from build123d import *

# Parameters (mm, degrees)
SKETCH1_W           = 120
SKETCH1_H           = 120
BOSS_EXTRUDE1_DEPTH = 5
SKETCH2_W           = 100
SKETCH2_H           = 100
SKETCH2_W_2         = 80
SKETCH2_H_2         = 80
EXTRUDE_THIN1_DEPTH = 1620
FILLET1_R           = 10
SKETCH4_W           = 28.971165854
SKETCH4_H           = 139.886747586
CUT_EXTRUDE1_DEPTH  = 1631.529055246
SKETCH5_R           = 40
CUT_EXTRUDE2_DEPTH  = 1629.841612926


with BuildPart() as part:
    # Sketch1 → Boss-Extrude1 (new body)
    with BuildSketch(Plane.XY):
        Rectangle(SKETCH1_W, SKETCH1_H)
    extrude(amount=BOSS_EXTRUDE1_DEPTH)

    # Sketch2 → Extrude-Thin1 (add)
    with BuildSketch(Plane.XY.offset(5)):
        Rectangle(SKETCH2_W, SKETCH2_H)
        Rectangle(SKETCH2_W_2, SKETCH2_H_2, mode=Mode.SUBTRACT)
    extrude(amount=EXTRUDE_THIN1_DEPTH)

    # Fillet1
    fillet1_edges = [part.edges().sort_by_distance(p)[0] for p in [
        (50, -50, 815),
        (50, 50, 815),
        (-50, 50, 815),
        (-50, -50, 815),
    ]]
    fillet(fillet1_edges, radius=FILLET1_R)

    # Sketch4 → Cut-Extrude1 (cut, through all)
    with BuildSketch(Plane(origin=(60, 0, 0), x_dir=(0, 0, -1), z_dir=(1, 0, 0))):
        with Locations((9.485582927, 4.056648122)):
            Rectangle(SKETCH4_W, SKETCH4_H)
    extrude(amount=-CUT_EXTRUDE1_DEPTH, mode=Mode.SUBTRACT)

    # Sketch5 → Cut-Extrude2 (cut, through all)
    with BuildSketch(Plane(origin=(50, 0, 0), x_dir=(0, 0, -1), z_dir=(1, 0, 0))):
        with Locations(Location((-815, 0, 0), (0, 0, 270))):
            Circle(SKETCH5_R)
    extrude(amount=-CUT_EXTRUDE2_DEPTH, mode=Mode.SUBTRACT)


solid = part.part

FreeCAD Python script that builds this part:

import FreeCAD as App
import Part
import Sketcher

V = App.Vector


def edges_at(feature, points):
    """Names of the edges that pass closest to the given points."""
    edges = feature.Shape.Edges
    near = lambda p: min(range(len(edges)), key=lambda i: edges[i].distToShape(Part.Vertex(*p))[0])
    return sorted({f"Edge{near(p) + 1}" for p in points})

doc = App.newDocument("Part")
body = doc.addObject("PartDesign::Body", "Body")

sketch1 = doc.addObject("Sketcher::SketchObject", "Sketch")
body.addObject(sketch1)
sketch1.AttachmentSupport = (doc.XY_Plane, [""])
sketch1.MapMode = "FlatFace"
sketch1.addGeometry(Part.LineSegment(V(-60, 60, 0), V(-60, -60, 0)), False)
sketch1.addGeometry(Part.LineSegment(V(-60, -60, 0), V(60, -60, 0)), False)
sketch1.addGeometry(Part.LineSegment(V(60, -60, 0), V(60, 60, 0)), False)
sketch1.addGeometry(Part.LineSegment(V(60, 60, 0), V(-60, 60, 0)), False)
sketch1.addConstraint(Sketcher.Constraint("Coincident", 0, 2, 1, 1))
sketch1.addConstraint(Sketcher.Constraint("Coincident", 1, 2, 2, 1))
sketch1.addConstraint(Sketcher.Constraint("Coincident", 2, 2, 3, 1))
sketch1.addConstraint(Sketcher.Constraint("Coincident", 3, 2, 0, 1))
sketch1.addConstraint(Sketcher.Constraint("Vertical", 0))
sketch1.addConstraint(Sketcher.Constraint("Horizontal", 1))
sketch1.addConstraint(Sketcher.Constraint("Vertical", 2))
sketch1.addConstraint(Sketcher.Constraint("Horizontal", 3))
sketch1.addConstraint(Sketcher.Constraint("Symmetric", 0, 2, 2, 2, -1, 1))
sketch1.addConstraint(Sketcher.Constraint("Equal", 3, 0))
sketch1.addConstraint(Sketcher.Constraint("DistanceX", 1, 1, 1, 2, 120.0))
pad1 = doc.addObject("PartDesign::Pad", "Pad")
body.addObject(pad1)
pad1.Profile = sketch1
pad1.Length = 5

sketch2 = doc.addObject("Sketcher::SketchObject", "Sketch001")
body.addObject(sketch2)
sketch2.AttachmentSupport = (doc.XY_Plane, [""])
sketch2.MapMode = "FlatFace"
sketch2.AttachmentOffset = App.Placement(V(0, 0, 5), App.Rotation())
sketch2.addGeometry(Part.LineSegment(V(-50, 50, 0), V(-50, -50, 0)), False)
sketch2.addGeometry(Part.LineSegment(V(-50, -50, 0), V(50, -50, 0)), False)
sketch2.addGeometry(Part.LineSegment(V(50, -50, 0), V(50, 50, 0)), False)
sketch2.addGeometry(Part.LineSegment(V(50, 50, 0), V(-50, 50, 0)), False)
sketch2.addGeometry(Part.LineSegment(V(40, -40, 0), V(-40, -40, 0)), False)
sketch2.addGeometry(Part.LineSegment(V(-40, -40, 0), V(-40, 40, 0)), False)
sketch2.addGeometry(Part.LineSegment(V(-40, 40, 0), V(40, 40, 0)), False)
sketch2.addGeometry(Part.LineSegment(V(40, 40, 0), V(40, -40, 0)), False)
sketch2.addConstraint(Sketcher.Constraint("Coincident", 0, 2, 1, 1))
sketch2.addConstraint(Sketcher.Constraint("Coincident", 1, 2, 2, 1))
sketch2.addConstraint(Sketcher.Constraint("Coincident", 2, 2, 3, 1))
sketch2.addConstraint(Sketcher.Constraint("Coincident", 3, 2, 0, 1))
sketch2.addConstraint(Sketcher.Constraint("Coincident", 4, 2, 5, 1))
sketch2.addConstraint(Sketcher.Constraint("Coincident", 5, 2, 6, 1))
sketch2.addConstraint(Sketcher.Constraint("Coincident", 6, 2, 7, 1))
sketch2.addConstraint(Sketcher.Constraint("Coincident", 7, 2, 4, 1))
sketch2.addConstraint(Sketcher.Constraint("Vertical", 0))
sketch2.addConstraint(Sketcher.Constraint("Horizontal", 1))
sketch2.addConstraint(Sketcher.Constraint("Vertical", 2))
sketch2.addConstraint(Sketcher.Constraint("Horizontal", 3))
sketch2.addConstraint(Sketcher.Constraint("Horizontal", 4))
sketch2.addConstraint(Sketcher.Constraint("Vertical", 5))
sketch2.addConstraint(Sketcher.Constraint("Horizontal", 6))
sketch2.addConstraint(Sketcher.Constraint("Vertical", 7))
sketch2.addConstraint(Sketcher.Constraint("Symmetric", 0, 2, 2, 2, -1, 1))
sketch2.addConstraint(Sketcher.Constraint("Symmetric", 4, 2, 6, 2, -1, 1))
sketch2.addConstraint(Sketcher.Constraint("Equal", 3, 0))
sketch2.addConstraint(Sketcher.Constraint("Equal", 6, 5))
sketch2.addConstraint(Sketcher.Constraint("DistanceX", 1, 1, 1, 2, 100.0))
sketch2.addConstraint(Sketcher.Constraint("DistanceX", 4, 2, 4, 1, 80.0))
pad2 = doc.addObject("PartDesign::Pad", "Pad001")
body.addObject(pad2)
pad2.Profile = sketch2
pad2.Length = 1620
doc.recompute()

fillet = doc.addObject("PartDesign::Fillet", "Fillet")
body.addObject(fillet)
fillet.Base = (pad2, edges_at(pad2, [
    (50, -50, 815),
    (50, 50, 815),
    (-50, 50, 815),
    (-50, -50, 815),
]))
fillet.Radius = 10

sketch3 = doc.addObject("Sketcher::SketchObject", "Sketch002")
body.addObject(sketch3)
sketch3.AttachmentSupport = (doc.YZ_Plane, [""])
sketch3.MapMode = "FlatFace"
sketch3.AttachmentOffset = App.Placement(V(0, 0, 60), App.Rotation())
sketch3.addGeometry(Part.LineSegment(V(74, 5, 0), V(-66, 5, 0)), False)
sketch3.addGeometry(Part.LineSegment(V(-66, 5, 0), V(-66, -24, 0)), False)
sketch3.addGeometry(Part.LineSegment(V(-66, -24, 0), V(74, -24, 0)), False)
sketch3.addGeometry(Part.LineSegment(V(74, -24, 0), V(74, 5, 0)), False)
sketch3.addConstraint(Sketcher.Constraint("Coincident", 0, 2, 1, 1))
sketch3.addConstraint(Sketcher.Constraint("Coincident", 1, 2, 2, 1))
sketch3.addConstraint(Sketcher.Constraint("Coincident", 2, 2, 3, 1))
sketch3.addConstraint(Sketcher.Constraint("Coincident", 3, 2, 0, 1))
sketch3.addConstraint(Sketcher.Constraint("Horizontal", 0))
sketch3.addConstraint(Sketcher.Constraint("Vertical", 1))
sketch3.addConstraint(Sketcher.Constraint("Horizontal", 2))
sketch3.addConstraint(Sketcher.Constraint("Vertical", 3))
sketch3.addConstraint(Sketcher.Constraint("DistanceY", -1, 1, 0, 2, 5.0))
sketch3.addConstraint(Sketcher.Constraint("DistanceX", 0, 2, 0, 1, 139.886748))
sketch3.addConstraint(Sketcher.Constraint("DistanceY", 1, 2, 1, 1, 28.971166))
sketch3.addConstraint(Sketcher.Constraint("DistanceX", -1, 1, 2, 2, 74.000022))
pocket1 = doc.addObject("PartDesign::Pocket", "Pocket")
body.addObject(pocket1)
pocket1.Profile = sketch3
pocket1.Type = "ThroughAll"

sketch4 = doc.addObject("Sketcher::SketchObject", "Sketch003")
body.addObject(sketch4)
sketch4.AttachmentSupport = (doc.YZ_Plane, [""])
sketch4.MapMode = "FlatFace"
sketch4.AttachmentOffset = App.Placement(V(0, 0, 50), App.Rotation())
sketch4.addGeometry(Part.Circle(V(0, 815, 0), V(0, 0, 1), 40), False)
sketch4.addConstraint(Sketcher.Constraint("PointOnObject", 0, 3, -2))
sketch4.addConstraint(Sketcher.Constraint("Diameter", 0, 80.0))
sketch4.addConstraint(Sketcher.Constraint("DistanceY", -1, 1, 0, 3, 815.0))
pocket2 = doc.addObject("PartDesign::Pocket", "Pocket001")
body.addObject(pocket2)
pocket2.Profile = sketch4
pocket2.Type = "ThroughAll"

doc.recompute()
